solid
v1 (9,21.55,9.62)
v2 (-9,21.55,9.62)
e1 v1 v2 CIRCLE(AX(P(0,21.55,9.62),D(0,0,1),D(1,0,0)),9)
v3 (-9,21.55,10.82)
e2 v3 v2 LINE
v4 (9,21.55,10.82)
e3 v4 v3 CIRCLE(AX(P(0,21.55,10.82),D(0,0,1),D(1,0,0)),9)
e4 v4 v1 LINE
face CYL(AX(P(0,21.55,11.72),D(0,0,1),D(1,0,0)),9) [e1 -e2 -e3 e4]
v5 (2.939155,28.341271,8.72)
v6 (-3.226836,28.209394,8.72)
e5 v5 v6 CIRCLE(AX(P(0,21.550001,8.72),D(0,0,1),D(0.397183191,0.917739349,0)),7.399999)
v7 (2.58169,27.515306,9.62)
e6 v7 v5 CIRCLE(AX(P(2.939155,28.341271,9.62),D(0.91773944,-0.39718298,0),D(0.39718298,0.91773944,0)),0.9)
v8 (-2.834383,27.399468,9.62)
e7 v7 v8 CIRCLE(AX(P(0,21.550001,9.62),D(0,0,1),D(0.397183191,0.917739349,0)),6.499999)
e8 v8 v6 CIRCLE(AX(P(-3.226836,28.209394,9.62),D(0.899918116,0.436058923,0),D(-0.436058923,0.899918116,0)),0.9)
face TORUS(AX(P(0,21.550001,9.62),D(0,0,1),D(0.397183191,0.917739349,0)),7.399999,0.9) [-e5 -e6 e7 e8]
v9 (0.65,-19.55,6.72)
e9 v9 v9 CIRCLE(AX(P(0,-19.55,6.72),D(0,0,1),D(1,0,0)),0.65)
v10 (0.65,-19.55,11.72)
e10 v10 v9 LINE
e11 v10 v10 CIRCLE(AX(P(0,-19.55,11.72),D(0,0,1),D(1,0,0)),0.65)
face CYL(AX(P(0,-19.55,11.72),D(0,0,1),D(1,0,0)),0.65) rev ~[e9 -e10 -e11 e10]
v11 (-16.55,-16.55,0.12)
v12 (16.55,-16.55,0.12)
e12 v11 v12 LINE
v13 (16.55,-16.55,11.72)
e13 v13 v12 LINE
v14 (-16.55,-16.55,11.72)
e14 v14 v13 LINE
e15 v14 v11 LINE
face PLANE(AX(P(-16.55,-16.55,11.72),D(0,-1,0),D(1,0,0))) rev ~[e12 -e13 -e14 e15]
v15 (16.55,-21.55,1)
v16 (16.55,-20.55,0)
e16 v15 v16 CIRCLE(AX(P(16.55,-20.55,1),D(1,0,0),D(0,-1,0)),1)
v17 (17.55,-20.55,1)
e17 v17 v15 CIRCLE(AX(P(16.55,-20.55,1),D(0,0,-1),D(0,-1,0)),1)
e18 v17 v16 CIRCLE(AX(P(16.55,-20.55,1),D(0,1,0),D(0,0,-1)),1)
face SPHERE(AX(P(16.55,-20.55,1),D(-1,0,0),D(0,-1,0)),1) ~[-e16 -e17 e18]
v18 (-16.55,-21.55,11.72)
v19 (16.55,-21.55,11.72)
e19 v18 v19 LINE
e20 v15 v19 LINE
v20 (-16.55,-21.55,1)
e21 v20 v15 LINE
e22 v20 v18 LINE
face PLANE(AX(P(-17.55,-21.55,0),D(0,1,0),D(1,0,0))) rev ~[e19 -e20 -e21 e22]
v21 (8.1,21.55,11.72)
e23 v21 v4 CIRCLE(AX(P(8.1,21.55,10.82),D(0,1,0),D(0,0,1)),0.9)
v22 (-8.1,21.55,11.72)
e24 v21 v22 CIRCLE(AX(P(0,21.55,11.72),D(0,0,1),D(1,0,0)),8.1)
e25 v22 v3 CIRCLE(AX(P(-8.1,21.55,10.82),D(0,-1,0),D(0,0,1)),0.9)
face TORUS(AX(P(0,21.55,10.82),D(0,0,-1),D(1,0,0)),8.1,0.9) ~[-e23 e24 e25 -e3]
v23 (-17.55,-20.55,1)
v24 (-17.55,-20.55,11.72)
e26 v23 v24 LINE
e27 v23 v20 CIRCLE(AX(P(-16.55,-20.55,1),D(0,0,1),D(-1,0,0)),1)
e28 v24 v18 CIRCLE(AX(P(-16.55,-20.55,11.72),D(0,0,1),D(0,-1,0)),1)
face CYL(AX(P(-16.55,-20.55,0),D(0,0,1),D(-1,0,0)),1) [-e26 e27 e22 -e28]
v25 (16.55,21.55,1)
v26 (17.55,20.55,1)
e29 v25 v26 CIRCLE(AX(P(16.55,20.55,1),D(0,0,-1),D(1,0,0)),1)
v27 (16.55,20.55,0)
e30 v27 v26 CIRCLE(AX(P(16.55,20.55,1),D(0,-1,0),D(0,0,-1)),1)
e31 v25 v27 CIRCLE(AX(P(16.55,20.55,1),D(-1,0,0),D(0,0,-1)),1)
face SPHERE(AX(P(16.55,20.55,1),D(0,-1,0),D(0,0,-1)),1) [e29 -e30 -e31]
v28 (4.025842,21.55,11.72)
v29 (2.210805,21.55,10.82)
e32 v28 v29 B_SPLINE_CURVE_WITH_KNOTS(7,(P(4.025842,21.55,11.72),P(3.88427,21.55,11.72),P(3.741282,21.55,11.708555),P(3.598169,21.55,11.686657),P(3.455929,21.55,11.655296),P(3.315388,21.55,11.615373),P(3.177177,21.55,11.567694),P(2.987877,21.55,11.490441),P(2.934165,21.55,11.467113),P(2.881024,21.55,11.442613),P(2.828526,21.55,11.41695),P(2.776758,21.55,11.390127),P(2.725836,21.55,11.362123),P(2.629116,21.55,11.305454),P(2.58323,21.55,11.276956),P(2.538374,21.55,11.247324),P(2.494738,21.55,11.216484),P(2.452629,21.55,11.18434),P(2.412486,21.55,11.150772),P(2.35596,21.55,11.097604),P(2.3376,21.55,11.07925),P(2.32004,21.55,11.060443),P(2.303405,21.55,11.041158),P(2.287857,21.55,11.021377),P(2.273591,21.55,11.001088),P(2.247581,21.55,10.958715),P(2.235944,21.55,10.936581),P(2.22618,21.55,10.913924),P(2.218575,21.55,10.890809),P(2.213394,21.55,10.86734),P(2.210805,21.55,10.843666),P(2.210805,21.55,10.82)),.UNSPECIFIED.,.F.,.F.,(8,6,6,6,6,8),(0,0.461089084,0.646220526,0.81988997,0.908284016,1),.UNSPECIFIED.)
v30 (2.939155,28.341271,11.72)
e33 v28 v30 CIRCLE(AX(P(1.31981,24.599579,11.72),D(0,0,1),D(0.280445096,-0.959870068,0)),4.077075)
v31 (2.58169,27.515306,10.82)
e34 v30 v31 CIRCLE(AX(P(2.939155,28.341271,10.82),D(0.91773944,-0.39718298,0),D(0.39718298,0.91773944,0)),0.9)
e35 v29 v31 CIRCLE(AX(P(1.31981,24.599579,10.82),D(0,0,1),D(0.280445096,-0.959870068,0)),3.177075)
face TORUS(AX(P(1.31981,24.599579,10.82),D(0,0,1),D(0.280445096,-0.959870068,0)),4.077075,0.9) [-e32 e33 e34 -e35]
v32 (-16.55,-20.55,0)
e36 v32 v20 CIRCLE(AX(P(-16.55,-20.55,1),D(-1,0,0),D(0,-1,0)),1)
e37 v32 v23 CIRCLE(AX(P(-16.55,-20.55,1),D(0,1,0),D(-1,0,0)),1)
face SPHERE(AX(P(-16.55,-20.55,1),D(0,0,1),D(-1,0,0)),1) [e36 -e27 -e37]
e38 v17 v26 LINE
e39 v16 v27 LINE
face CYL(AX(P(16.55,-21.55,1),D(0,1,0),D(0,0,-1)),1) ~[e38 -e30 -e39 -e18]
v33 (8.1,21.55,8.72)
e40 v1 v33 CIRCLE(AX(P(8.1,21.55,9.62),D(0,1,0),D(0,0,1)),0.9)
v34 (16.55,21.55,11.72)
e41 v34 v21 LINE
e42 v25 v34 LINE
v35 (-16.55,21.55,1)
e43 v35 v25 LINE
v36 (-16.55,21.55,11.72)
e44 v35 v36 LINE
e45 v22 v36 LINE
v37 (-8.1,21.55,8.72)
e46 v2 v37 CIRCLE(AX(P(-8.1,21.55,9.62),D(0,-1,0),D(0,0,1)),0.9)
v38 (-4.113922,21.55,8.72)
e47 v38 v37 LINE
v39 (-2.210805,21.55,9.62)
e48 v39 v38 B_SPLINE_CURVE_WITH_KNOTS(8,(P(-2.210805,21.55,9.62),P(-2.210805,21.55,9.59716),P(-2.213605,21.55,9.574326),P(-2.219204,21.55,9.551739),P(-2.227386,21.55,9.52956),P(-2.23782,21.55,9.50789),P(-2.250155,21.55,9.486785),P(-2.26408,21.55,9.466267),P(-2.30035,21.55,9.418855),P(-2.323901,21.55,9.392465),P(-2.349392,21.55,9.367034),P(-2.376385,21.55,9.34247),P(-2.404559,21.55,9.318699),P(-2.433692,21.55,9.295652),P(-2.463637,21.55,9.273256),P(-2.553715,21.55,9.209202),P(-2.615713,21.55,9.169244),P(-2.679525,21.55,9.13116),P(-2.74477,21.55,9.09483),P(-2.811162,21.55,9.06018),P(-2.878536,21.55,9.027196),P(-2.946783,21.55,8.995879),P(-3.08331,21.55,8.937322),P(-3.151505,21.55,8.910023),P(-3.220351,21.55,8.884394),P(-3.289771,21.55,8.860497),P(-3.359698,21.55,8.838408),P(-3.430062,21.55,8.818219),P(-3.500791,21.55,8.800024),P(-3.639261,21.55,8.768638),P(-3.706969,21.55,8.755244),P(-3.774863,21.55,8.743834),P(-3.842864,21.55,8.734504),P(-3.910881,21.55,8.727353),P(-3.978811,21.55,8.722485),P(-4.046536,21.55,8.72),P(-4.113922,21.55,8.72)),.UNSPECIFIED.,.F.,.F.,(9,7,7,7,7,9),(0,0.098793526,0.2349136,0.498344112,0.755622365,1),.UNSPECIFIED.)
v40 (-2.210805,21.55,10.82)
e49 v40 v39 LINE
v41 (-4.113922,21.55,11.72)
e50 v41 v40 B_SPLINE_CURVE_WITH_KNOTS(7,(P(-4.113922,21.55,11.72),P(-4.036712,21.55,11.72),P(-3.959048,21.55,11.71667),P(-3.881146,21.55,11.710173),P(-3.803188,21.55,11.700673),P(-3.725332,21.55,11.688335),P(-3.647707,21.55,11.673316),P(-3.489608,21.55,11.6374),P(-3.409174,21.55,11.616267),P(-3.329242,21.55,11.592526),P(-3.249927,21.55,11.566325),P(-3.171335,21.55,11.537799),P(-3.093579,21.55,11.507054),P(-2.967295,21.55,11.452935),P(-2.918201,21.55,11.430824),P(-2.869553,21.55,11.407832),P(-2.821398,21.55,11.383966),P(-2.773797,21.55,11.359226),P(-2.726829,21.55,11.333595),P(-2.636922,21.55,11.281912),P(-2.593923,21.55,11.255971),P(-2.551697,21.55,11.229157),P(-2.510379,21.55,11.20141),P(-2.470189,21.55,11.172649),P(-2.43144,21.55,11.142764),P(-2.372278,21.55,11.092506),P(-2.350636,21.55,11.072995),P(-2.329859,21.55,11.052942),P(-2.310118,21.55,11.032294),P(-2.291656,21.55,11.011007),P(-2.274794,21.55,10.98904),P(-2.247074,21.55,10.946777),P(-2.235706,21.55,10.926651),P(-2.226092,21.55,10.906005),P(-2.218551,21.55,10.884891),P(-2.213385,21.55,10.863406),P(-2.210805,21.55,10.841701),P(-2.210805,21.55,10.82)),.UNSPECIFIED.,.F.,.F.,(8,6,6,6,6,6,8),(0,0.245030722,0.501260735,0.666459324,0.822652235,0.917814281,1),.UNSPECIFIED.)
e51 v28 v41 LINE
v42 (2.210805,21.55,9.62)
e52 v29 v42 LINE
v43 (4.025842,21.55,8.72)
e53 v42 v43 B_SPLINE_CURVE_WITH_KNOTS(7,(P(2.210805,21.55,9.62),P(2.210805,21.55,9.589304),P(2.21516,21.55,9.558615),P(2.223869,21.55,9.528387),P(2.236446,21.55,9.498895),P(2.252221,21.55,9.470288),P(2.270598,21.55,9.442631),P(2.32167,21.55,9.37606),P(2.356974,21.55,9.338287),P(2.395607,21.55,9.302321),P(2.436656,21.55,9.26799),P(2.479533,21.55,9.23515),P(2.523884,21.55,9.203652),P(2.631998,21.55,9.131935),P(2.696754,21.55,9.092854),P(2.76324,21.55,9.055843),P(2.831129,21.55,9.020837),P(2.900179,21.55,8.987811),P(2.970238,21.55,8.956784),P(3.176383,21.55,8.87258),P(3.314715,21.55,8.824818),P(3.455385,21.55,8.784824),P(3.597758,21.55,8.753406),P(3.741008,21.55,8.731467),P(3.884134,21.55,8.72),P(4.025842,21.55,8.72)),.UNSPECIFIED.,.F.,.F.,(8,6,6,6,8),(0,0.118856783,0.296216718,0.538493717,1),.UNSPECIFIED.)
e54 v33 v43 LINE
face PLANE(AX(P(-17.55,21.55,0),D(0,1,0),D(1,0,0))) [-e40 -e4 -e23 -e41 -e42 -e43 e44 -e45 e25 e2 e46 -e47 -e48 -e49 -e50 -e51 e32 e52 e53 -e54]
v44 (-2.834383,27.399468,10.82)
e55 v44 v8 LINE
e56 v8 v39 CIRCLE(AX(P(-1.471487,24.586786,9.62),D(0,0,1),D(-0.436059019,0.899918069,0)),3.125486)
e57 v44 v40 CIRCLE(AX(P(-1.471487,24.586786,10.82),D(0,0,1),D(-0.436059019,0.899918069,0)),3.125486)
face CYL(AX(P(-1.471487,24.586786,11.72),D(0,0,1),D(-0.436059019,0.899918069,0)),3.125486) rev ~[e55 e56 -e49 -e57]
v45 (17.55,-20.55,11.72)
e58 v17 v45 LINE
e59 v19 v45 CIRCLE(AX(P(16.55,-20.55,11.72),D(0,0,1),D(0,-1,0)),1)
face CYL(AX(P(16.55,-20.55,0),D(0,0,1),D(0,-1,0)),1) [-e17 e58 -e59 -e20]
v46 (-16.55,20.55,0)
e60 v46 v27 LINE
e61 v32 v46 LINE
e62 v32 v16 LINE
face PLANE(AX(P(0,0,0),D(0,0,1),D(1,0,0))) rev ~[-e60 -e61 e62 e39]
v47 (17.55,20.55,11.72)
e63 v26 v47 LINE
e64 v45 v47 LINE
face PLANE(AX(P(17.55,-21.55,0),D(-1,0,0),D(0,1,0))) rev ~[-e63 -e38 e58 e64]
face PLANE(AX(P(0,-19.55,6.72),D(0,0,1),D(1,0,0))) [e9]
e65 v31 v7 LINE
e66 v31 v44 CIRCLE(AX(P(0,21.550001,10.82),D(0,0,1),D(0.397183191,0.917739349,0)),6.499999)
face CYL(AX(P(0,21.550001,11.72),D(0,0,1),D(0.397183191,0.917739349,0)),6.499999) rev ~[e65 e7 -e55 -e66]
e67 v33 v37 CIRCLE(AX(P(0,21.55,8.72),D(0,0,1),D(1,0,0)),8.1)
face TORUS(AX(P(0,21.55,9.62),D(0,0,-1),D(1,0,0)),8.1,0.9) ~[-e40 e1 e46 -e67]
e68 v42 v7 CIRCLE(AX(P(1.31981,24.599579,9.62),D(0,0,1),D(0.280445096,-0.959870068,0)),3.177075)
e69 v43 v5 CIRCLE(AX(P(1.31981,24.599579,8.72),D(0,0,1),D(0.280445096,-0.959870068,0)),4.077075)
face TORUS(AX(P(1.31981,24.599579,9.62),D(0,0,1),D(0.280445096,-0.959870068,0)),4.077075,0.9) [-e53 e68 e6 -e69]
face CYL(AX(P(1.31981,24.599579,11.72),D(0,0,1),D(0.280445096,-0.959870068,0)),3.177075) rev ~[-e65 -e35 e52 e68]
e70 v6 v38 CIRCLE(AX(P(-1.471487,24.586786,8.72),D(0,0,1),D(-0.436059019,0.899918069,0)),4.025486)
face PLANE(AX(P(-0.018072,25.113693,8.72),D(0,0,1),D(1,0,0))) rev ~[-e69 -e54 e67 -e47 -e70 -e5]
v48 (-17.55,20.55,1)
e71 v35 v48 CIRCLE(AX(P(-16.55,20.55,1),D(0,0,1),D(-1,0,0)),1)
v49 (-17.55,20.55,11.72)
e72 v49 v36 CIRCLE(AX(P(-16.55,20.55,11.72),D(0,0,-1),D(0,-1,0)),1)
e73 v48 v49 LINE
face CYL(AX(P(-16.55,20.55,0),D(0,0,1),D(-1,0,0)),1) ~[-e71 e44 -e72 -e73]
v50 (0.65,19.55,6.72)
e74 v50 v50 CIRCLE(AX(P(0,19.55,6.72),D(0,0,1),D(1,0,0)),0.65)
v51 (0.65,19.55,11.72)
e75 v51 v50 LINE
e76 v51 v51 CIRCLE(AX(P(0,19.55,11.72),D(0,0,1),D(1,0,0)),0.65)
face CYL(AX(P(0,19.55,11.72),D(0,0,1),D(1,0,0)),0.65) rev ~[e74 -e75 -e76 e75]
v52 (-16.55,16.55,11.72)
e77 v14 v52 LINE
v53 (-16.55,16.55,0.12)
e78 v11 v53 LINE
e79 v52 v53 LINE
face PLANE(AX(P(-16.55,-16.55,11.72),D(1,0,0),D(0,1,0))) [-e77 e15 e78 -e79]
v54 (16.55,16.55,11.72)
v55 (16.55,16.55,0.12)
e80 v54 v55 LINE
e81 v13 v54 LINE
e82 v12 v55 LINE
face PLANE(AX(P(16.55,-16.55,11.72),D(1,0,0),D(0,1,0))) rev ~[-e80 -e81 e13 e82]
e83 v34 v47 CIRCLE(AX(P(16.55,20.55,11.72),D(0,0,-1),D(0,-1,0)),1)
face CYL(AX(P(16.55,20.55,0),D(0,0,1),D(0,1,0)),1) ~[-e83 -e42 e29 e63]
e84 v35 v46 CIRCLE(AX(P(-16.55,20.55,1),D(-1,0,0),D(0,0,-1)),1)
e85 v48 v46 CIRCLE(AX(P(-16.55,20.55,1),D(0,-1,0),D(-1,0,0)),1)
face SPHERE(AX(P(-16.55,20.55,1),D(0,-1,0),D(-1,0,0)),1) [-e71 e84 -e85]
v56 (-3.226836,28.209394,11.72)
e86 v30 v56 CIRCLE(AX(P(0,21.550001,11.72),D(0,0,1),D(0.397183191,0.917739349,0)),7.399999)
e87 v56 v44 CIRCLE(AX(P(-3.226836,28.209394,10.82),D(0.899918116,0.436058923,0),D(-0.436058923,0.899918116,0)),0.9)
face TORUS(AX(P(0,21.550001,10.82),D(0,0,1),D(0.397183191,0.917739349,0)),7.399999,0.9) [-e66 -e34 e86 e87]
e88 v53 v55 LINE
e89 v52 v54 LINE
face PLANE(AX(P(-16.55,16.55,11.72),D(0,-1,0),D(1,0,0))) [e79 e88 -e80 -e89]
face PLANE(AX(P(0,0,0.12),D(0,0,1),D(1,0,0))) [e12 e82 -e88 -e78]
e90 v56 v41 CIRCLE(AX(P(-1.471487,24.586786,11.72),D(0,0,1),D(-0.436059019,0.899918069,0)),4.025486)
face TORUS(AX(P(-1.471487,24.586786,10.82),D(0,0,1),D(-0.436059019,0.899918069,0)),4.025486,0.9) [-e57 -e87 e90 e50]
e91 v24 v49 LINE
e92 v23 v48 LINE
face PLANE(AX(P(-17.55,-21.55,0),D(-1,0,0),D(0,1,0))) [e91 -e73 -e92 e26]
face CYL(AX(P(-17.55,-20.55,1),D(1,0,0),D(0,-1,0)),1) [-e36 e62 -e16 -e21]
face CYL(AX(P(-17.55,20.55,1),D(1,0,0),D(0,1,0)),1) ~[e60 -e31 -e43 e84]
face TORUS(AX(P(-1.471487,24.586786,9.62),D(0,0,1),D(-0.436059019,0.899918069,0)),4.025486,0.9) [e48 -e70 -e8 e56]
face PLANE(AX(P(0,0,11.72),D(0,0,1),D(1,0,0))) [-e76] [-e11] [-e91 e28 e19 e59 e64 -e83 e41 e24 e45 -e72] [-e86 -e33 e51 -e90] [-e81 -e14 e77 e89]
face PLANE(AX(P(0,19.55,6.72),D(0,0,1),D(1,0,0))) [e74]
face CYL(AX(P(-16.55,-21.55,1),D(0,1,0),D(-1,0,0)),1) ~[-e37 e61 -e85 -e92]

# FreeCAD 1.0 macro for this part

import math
import FreeCAD as App
import Part
import Sketcher

V = App.Vector


def edges_at(feature, points):
    """Names of the edges that pass closest to the given points."""
    edges = feature.Shape.Edges
    near = lambda p: min(range(len(edges)), key=lambda i: edges[i].distToShape(Part.Vertex(*p))[0])
    return sorted({f"Edge{near(p) + 1}" for p in points})

doc = App.newDocument("Part")
body = doc.addObject("PartDesign::Body", "Body")

# Sketch on XY plane
sketch1 = doc.addObject("Sketcher::SketchObject", "Sketch")
body.addObject(sketch1)
sketch1.AttachmentSupport = (doc.XY_Plane, [""])
sketch1.MapMode = "FlatFace"
sketch1.addGeometry([
    Part.LineSegment(V(-17.55, 21.55, 0), V(-17.55, -21.55, 0)),
    Part.LineSegment(V(-17.55, -21.55, 0), V(17.55, -21.55, 0)),
    Part.LineSegment(V(17.55, -21.55, 0), V(17.55, 21.55, 0)),
    Part.LineSegment(V(17.55, 21.55, 0), V(-17.55, 21.55, 0)),
], False)
sketch1.addConstraint([
    Sketcher.Constraint("Coincident", 0, 2, 1, 1),
    Sketcher.Constraint("Coincident", 1, 2, 2, 1),
    Sketcher.Constraint("Coincident", 2, 2, 3, 1),
    Sketcher.Constraint("Coincident", 3, 2, 0, 1),
    Sketcher.Constraint("Vertical", 0),
    Sketcher.Constraint("Horizontal", 1),
    Sketcher.Constraint("Vertical", 2),
    Sketcher.Constraint("Horizontal", 3),
    Sketcher.Constraint("Symmetric", 0, 2, 2, 2, -1, 1),
    Sketcher.Constraint("DistanceX", 1, 1, 1, 2, 35.1),
    Sketcher.Constraint("DistanceY", 0, 2, 0, 1, 43.1),
])
pad1 = doc.addObject("PartDesign::Pad", "Pad")
body.addObject(pad1)
pad1.Profile = sketch1
pad1.Length = 11.72

# Sketch on XY plane
sketch2 = doc.addObject("Sketcher::SketchObject", "Sketch001")
body.addObject(sketch2)
sketch2.AttachmentSupport = (doc.XY_Plane, [""])
sketch2.MapMode = "FlatFace"
sketch2.AttachmentOffset = App.Placement(V(0, 0, 11.72), App.Rotation())
sketch2.addGeometry([
    Part.LineSegment(V(-16.55, 16.55, 0), V(-16.55, -16.55, 0)),
    Part.LineSegment(V(-16.55, -16.55, 0), V(16.55, -16.55, 0)),
    Part.LineSegment(V(16.55, -16.55, 0), V(16.55, 16.55, 0)),
    Part.LineSegment(V(16.55, 16.55, 0), V(-16.55, 16.55, 0)),
], False)
sketch2.addConstraint([
    Sketcher.Constraint("Coincident", 0, 2, 1, 1),
    Sketcher.Constraint("Coincident", 1, 2, 2, 1),
    Sketcher.Constraint("Coincident", 2, 2, 3, 1),
    Sketcher.Constraint("Coincident", 3, 2, 0, 1),
    Sketcher.Constraint("Vertical", 0),
    Sketcher.Constraint("Horizontal", 1),
    Sketcher.Constraint("Vertical", 2),
    Sketcher.Constraint("Horizontal", 3),
    Sketcher.Constraint("Symmetric", 0, 2, 2, 2, -1, 1),
    Sketcher.Constraint("Equal", 3, 0),
    Sketcher.Constraint("DistanceX", 1, 1, 1, 2, 33.1),
])
pocket1 = doc.addObject("PartDesign::Pocket", "Pocket")
body.addObject(pocket1)
pocket1.Profile = sketch2
pocket1.Length = 11.6

# Sketch on XY plane
sketch3 = doc.addObject("Sketcher::SketchObject", "Sketch002")
body.addObject(sketch3)
sketch3.AttachmentSupport = (doc.XY_Plane, [""])
sketch3.MapMode = "FlatFace"
sketch3.AttachmentOffset = App.Placement(V(0, 0, 11.72), App.Rotation())
sketch3.addGeometry([
    Part.Circle(V(0, 19.55, 0), V(0, 0, 1), 0.65),
    Part.Circle(V(0, -19.55, 0), V(0, 0, 1), 0.65),
], False)
sketch3.addConstraint([
    Sketcher.Constraint("Equal", 0, 1),
    Sketcher.Constraint("Symmetric", 0, 3, 1, 3, -1, 1),
    Sketcher.Constraint("PointOnObject", 0, 3, -2),
    Sketcher.Constraint("Diameter", 0, 1.3),
    Sketcher.Constraint("DistanceY", 1, 3, 0, 3, 39.1),
])
pocket2 = doc.addObject("PartDesign::Pocket", "Pocket001")
body.addObject(pocket2)
pocket2.Profile = sketch3
pocket2.Length = 5

# Sketch on XY plane
sketch4 = doc.addObject("Sketcher::SketchObject", "Sketch003")
body.addObject(sketch4)
sketch4.AttachmentSupport = (doc.XY_Plane, [""])
sketch4.MapMode = "FlatFace"
sketch4.AttachmentOffset = App.Placement(V(0, 0, 11.72), App.Rotation())
sketch4.addGeometry([
    Part.ArcOfCircle(Part.Circle(V(0, 21.55, 0), V(0, 0, 1), 9), math.radians(0), math.radians(180)),  # 0
    Part.LineSegment(V(-9, 21.55, 0), V(-2.210805, 21.55, 0)),  # 1
    Part.ArcOfCircle(Part.Circle(V(-1.471487, 24.586786, 0), V(0, 0, 1), 3.125486), math.radians(115.8527), math.radians(256.317281)),  # 2
    Part.ArcOfCircle(Part.Circle(V(0, 21.550001, 0), V(0, 0, 1), 6.499999), math.radians(66.597796), math.radians(115.852694)),  # 3
    Part.ArcOfCircle(Part.Circle(V(1.31981, 24.599579, 0), V(0, 0, 1), 3.177075), math.radians(-73.713229), math.radians(66.597809)),  # 4
    Part.LineSegment(V(2.210805, 21.55, 0), V(9, 21.55, 0)),  # 5
], False)
sketch4.addConstraint([
    Sketcher.Constraint("Coincident", 0, 2, 1, 1),
    Sketcher.Constraint("Coincident", 1, 2, 2, 2),
    Sketcher.Constraint("Tangent", 2, 1, 3, 2),
    Sketcher.Constraint("Tangent", 3, 1, 4, 2),
    Sketcher.Constraint("Coincident", 4, 1, 5, 1),
    Sketcher.Constraint("Coincident", 5, 2, 0, 1),
    Sketcher.Constraint("Horizontal", 1),
    Sketcher.Constraint("Horizontal", 5),
    Sketcher.Constraint("Coincident", 3, 3, 0, 3),
    Sketcher.Constraint("Symmetric", 1, 2, 4, 1, -2),
    Sketcher.Constraint("PointOnObject", 0, 3, -2),
    Sketcher.Constraint("Horizontal", 3, 3, 0, 2),
    Sketcher.Constraint("Radius", 0, 9.0),
    Sketcher.Constraint("Radius", 3, 6.499999),
    Sketcher.Constraint("DistanceY", -1, 1, 0, 3, 21.55),
    Sketcher.Constraint("Radius", 2, 3.125486),
    Sketcher.Constraint("Radius", 4, 3.177075),
    Sketcher.Constraint("DistanceX", 1, 1, 1, 2, 6.789195),
])
pad2 = doc.addObject("PartDesign::Pad", "Pad001")
body.addObject(pad2)
pad2.Profile = sketch4
pad2.Length = 3
pad2.Reversed = True
doc.recompute()

fillet = doc.addObject("PartDesign::Fillet", "Fillet")
body.addObject(fillet)
fillet.Base = (pad2, edges_at(pad2, [
    (-17.55, -21.55, 5.86),
    (-17.55, 0, 0),
    (0, -21.55, 0),
    (17.55, -21.55, 5.86),
    (17.55, 0, 0),
    (-17.55, 21.55, 5.86),
    (0, 21.55, 0),
    (17.55, 21.55, 5.86),
]))
fillet.Radius = 1
doc.recompute()

fillet2 = doc.addObject("PartDesign::Fillet", "Fillet001")
body.addObject(fillet2)
fillet2.Base = (fillet, edges_at(fillet, [
    (0, 30.55, 11.72),
    (0, 30.55, 8.72),
    (-4.579, 24.255, 8.72),
    (-0.139, 28.049, 8.72),
    (4.491, 24.402, 8.72),
    (-4.579, 24.255, 11.72),
    (-0.139, 28.049, 11.72),
    (4.491, 24.402, 11.72),
]))
fillet2.Radius = 0.9

doc.recompute()
